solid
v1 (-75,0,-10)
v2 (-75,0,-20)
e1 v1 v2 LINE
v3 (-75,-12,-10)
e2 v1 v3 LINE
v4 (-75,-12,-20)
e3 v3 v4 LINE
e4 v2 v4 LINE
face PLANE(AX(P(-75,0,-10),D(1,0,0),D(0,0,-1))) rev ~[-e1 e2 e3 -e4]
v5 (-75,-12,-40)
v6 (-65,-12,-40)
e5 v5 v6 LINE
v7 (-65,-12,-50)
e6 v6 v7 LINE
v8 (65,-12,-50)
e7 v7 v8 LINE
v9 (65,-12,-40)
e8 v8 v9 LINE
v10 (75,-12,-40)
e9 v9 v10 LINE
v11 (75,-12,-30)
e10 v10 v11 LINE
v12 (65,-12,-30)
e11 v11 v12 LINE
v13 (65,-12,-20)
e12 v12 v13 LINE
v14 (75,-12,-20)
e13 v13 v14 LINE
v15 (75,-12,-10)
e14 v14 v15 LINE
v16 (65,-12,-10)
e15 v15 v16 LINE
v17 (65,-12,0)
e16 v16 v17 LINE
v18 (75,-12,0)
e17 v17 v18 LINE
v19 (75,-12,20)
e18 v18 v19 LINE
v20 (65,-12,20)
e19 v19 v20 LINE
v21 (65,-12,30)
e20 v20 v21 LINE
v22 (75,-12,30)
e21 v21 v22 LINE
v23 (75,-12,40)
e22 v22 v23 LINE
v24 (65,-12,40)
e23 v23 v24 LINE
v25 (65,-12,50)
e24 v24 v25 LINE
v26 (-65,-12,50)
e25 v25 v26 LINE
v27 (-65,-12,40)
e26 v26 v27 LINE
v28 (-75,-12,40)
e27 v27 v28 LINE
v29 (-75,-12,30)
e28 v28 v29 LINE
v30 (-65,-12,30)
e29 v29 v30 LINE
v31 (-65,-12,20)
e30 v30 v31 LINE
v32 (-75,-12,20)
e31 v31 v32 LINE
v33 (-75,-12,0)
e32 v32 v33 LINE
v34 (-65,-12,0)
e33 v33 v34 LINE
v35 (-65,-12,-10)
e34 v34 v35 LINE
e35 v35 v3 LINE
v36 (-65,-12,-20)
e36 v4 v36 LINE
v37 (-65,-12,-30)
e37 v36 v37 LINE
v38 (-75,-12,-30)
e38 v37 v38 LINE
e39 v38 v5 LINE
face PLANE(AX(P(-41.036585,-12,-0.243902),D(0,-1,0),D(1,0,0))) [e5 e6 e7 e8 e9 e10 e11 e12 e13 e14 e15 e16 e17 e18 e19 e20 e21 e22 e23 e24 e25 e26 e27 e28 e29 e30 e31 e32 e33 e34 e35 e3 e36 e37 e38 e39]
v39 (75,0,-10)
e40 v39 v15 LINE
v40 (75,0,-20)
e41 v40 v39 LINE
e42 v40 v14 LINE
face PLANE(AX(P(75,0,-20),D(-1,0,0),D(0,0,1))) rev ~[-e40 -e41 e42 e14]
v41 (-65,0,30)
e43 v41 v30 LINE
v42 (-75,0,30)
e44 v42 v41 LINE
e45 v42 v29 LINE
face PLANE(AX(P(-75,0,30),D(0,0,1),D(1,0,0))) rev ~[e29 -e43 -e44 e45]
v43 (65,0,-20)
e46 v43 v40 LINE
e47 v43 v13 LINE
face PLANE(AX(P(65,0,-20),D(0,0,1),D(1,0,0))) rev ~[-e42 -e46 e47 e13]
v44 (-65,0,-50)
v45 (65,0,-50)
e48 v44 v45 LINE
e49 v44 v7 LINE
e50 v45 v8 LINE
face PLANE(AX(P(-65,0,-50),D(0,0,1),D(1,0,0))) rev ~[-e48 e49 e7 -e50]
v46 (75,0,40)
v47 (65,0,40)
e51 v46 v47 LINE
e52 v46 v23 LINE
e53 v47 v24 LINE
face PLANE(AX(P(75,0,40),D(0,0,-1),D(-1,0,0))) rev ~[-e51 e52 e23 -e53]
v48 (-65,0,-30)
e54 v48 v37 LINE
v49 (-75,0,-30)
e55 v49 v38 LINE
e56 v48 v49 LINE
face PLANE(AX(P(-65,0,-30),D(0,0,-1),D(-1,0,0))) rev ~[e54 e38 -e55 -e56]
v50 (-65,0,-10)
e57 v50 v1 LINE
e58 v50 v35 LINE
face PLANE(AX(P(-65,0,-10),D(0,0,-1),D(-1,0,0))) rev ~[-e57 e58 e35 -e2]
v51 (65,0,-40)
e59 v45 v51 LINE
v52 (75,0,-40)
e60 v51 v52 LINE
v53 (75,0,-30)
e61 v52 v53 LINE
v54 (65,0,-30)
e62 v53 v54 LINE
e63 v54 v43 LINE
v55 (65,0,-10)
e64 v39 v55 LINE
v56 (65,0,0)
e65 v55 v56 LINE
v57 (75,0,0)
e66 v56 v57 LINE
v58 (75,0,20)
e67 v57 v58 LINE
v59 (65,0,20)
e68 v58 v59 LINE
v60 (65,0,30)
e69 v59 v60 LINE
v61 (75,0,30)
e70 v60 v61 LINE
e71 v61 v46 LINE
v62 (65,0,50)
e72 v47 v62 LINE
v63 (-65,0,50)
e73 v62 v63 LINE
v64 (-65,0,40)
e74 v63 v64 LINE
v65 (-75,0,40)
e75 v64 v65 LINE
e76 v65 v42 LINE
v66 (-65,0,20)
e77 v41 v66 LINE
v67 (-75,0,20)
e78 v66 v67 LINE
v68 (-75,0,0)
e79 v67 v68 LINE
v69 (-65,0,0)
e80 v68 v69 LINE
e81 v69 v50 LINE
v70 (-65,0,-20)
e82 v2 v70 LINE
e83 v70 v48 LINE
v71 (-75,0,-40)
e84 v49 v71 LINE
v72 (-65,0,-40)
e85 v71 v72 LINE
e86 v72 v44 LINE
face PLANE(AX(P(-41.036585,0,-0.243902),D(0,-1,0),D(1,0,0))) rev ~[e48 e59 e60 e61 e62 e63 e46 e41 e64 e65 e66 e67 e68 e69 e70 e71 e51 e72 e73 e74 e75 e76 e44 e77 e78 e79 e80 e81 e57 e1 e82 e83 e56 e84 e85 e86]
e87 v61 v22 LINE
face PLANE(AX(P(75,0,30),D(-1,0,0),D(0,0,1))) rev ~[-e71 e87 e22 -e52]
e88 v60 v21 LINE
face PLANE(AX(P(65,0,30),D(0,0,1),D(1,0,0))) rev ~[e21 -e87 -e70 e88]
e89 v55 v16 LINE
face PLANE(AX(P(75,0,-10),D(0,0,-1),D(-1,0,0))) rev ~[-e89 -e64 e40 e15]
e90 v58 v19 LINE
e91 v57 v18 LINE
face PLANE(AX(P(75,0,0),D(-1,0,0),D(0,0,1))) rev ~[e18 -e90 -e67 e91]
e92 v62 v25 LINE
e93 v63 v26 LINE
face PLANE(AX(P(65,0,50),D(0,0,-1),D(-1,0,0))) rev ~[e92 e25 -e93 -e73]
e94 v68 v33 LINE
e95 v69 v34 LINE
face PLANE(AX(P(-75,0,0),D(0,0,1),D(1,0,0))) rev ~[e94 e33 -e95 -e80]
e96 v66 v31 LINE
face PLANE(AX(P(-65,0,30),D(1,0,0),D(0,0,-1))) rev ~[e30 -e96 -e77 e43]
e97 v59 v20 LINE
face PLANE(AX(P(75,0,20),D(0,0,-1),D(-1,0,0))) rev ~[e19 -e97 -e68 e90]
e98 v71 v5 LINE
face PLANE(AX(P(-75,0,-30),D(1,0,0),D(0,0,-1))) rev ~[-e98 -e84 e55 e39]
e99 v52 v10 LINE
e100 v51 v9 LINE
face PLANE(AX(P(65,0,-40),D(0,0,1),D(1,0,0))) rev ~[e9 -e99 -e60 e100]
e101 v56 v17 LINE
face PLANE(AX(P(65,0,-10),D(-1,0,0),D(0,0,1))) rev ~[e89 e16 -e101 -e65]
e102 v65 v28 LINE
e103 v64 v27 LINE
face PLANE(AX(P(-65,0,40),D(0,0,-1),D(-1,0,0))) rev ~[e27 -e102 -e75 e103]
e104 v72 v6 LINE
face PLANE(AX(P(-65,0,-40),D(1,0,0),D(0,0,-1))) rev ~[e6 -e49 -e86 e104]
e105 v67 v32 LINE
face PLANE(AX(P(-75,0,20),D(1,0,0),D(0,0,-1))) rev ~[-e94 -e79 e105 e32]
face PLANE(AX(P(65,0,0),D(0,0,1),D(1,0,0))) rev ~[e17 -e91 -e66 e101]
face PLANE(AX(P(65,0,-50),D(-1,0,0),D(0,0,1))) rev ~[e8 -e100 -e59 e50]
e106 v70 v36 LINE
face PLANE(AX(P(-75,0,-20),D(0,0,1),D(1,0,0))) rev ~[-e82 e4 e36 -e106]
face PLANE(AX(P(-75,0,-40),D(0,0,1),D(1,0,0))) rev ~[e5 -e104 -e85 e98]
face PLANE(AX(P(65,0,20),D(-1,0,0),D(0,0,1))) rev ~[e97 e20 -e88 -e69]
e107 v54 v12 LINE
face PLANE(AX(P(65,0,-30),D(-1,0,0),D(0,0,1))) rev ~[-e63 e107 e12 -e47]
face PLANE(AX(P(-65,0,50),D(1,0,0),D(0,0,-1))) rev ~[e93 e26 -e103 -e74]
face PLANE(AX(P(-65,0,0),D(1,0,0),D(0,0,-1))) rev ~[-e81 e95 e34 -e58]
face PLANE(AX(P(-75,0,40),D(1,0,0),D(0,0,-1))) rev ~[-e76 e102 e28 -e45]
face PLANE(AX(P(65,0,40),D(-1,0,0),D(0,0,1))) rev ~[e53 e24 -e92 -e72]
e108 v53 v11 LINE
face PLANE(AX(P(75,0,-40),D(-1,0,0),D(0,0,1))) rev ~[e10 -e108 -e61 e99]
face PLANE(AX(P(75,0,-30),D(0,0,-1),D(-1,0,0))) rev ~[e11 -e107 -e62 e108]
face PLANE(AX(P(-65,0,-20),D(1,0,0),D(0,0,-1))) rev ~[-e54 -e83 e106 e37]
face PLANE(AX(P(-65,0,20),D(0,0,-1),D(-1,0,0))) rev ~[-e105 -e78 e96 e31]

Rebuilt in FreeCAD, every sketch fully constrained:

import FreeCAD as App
import Part
import Sketcher


def add_polygon(sketch, points):
    """Adds a closed chain of lines whose ends are joined by coincident constraints."""
    first, n = sketch.GeometryCount, len(points)
    for a, b in zip(points, points[1:] + points[:1]):
        sketch.addGeometry(Part.LineSegment(App.Vector(*a, 0), App.Vector(*b, 0)), False)
    for i in range(n):
        sketch.addConstraint(Sketcher.Constraint("Coincident", first + i, 2, first + (i + 1) % n, 1))

doc = App.newDocument("Part")
body = doc.addObject("PartDesign::Body", "Body")

sketch1 = doc.addObject("Sketcher::SketchObject", "Sketch")
body.addObject(sketch1)
sketch1.AttachmentSupport = (doc.XZ_Plane, [""])
sketch1.MapMode = "FlatFace"
add_polygon(sketch1, [(-65, 50), (-65, 40), (-75, 40), (-75, 30), (-65, 30), (-65, 20), (-75, 20), (-75, 0), (-65, 0), (-65, -10), (-75, -10), (-75, -20), (-65, -20), (-65, -30), (-75, -30), (-75, -40), (-65, -40), (-65, -50), (65, -50), (65, -40), (75, -40), (75, -30), (65, -30), (65, -20), (75, -20), (75, -10), (65, -10), (65, 0), (75, 0), (75, 20), (65, 20), (65, 30), (75, 30), (75, 40), (65, 40), (65, 50)])
sketch1.addConstraint([
    Sketcher.Constraint("Vertical", 0),
    Sketcher.Constraint("Horizontal", 1),
    Sketcher.Constraint("Vertical", 2),
    Sketcher.Constraint("Horizontal", 3),
    Sketcher.Constraint("Vertical", 4),
    Sketcher.Constraint("Horizontal", 5),
    Sketcher.Constraint("Vertical", 6),
    Sketcher.Constraint("Horizontal", 7),
    Sketcher.Constraint("Vertical", 8),
    Sketcher.Constraint("Horizontal", 9),
    Sketcher.Constraint("Vertical", 10),
    Sketcher.Constraint("Horizontal", 11),
    Sketcher.Constraint("Vertical", 12),
    Sketcher.Constraint("Horizontal", 13),
    Sketcher.Constraint("Vertical", 14),
    Sketcher.Constraint("Horizontal", 15),
    Sketcher.Constraint("Vertical", 16),
    Sketcher.Constraint("Horizontal", 17),
    Sketcher.Constraint("Vertical", 18),
    Sketcher.Constraint("Horizontal", 19),
    Sketcher.Constraint("Vertical", 20),
    Sketcher.Constraint("Horizontal", 21),
    Sketcher.Constraint("Vertical", 22),
    Sketcher.Constraint("Horizontal", 23),
    Sketcher.Constraint("Vertical", 24),
    Sketcher.Constraint("Horizontal", 25),
    Sketcher.Constraint("Vertical", 26),
    Sketcher.Constraint("Horizontal", 27),
    Sketcher.Constraint("Vertical", 28),
    Sketcher.Constraint("Horizontal", 29),
    Sketcher.Constraint("Vertical", 30),
    Sketcher.Constraint("Horizontal", 31),
    Sketcher.Constraint("Vertical", 32),
    Sketcher.Constraint("Horizontal", 33),
    Sketcher.Constraint("Vertical", 34),
    Sketcher.Constraint("Horizontal", 35),
    Sketcher.Constraint("Symmetric", 0, 2, 18, 2, -1, 1),
    Sketcher.Constraint("Symmetric", 2, 2, 20, 2, -1, 1),
    Sketcher.Constraint("Symmetric", 4, 2, 22, 2, -1, 1),
    Sketcher.Constraint("Symmetric", 7, 2, 26, 2, -1, 1),
    Sketcher.Constraint("Symmetric", 10, 2, 28, 2, -1, 1),
    Sketcher.Constraint("Symmetric", 12, 2, 30, 2, -1, 1),
    Sketcher.Constraint("Symmetric", 14, 2, 32, 2, -1, 1),
    Sketcher.Constraint("Symmetric", 16, 2, 34, 2, -1, 1),
    Sketcher.Constraint("Symmetric", 15, 2, 18, 2, -2),
    Sketcher.Constraint("Symmetric", 13, 2, 20, 2, -2),
    Sketcher.Constraint("Symmetric", 11, 2, 22, 2, -2),
    Sketcher.Constraint("Symmetric", 9, 2, 24, 2, -2),
    Sketcher.Constraint("Symmetric", 6, 2, 27, 2, -2),
    Sketcher.Constraint("Vertical", 0, 2, 3, 2),
    Sketcher.Constraint("Vertical", 2, 2, 5, 2),
    Sketcher.Constraint("Vertical", 4, 2, 7, 2),
    Sketcher.Constraint("Equal", 33, 0),
    Sketcher.Constraint("Equal", 0, 2),
    Sketcher.Constraint("Equal", 2, 4),
    Sketcher.Constraint("Equal", 4, 8),
    Sketcher.Constraint("Equal", 8, 10),
    Sketcher.Constraint("DistanceX", 1, 2, 1, 1, 10.0),
    Sketcher.Constraint("DistanceX", 17, 1, 17, 2, 130.0),
])
pad1 = doc.addObject("PartDesign::Pad", "Pad")
body.addObject(pad1)
pad1.Profile = sketch1
pad1.Length = 12

doc.recompute()
